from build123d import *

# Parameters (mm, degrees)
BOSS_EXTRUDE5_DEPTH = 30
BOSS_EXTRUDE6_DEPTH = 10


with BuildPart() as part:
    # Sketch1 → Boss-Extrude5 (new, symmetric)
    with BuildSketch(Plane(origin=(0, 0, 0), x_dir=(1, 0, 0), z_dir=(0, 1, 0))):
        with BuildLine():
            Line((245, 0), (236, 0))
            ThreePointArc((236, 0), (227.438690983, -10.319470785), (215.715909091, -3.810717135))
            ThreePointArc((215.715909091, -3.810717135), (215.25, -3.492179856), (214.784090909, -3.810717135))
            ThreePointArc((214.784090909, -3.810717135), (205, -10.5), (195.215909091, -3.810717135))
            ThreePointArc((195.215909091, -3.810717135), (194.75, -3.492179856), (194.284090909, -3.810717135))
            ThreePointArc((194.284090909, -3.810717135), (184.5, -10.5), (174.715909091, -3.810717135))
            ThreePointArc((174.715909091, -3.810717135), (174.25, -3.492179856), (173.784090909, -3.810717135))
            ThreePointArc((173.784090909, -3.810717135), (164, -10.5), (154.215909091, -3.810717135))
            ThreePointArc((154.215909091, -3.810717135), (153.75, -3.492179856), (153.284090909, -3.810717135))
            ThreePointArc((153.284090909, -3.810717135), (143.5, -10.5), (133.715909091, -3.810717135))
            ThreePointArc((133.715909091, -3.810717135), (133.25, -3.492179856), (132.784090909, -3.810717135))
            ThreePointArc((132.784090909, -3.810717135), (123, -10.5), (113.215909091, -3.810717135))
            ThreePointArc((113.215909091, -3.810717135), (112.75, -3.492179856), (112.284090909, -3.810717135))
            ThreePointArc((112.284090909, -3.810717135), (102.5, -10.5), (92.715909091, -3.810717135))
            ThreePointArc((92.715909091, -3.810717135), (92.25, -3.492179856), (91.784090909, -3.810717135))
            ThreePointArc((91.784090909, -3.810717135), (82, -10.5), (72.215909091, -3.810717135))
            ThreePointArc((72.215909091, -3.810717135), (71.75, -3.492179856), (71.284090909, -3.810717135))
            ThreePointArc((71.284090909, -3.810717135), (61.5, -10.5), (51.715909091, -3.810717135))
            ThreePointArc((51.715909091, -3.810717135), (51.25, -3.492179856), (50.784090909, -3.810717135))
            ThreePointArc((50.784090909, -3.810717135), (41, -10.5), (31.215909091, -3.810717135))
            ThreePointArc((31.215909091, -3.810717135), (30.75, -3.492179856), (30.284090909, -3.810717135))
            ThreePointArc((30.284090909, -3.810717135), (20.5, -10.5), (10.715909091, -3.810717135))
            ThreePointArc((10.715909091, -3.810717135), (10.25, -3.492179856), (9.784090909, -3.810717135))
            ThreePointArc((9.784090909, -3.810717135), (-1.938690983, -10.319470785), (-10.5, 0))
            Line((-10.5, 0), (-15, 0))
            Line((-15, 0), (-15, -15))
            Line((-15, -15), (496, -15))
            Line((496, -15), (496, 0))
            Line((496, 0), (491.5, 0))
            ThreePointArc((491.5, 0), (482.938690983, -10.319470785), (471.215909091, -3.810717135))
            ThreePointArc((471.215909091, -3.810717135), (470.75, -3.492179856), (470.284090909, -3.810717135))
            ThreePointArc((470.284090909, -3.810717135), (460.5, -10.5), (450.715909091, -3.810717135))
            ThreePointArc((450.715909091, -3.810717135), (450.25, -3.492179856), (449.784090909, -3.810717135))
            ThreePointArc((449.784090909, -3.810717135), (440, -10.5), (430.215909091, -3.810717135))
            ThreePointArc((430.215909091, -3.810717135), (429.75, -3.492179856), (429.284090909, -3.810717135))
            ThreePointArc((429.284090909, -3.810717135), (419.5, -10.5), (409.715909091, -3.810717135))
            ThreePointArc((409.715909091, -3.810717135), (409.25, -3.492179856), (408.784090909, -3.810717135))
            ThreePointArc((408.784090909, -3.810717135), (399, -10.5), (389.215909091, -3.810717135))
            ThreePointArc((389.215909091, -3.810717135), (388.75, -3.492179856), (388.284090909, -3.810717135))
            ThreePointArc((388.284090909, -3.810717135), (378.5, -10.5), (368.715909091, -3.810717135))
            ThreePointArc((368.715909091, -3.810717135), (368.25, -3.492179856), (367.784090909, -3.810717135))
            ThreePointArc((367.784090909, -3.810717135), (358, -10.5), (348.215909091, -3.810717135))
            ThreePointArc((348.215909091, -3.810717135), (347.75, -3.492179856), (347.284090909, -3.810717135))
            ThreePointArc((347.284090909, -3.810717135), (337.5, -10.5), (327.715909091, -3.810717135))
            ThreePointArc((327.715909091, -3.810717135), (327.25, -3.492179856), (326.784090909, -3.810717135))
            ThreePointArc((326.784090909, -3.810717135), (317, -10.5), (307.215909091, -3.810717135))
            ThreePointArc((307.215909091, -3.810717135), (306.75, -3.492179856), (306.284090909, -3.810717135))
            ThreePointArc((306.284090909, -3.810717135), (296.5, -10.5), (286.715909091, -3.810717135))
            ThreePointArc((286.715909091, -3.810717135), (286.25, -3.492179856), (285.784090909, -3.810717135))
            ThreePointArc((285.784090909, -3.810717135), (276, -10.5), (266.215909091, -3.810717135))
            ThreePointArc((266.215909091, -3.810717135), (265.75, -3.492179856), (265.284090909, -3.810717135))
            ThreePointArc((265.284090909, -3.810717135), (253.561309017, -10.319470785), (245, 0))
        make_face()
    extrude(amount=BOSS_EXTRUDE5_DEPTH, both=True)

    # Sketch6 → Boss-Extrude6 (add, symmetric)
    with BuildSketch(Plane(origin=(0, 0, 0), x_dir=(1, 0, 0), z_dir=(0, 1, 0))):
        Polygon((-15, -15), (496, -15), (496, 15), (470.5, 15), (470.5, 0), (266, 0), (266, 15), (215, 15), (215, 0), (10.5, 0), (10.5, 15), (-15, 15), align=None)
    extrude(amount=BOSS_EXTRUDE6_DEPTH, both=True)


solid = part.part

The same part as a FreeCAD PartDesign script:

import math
import FreeCAD as App
import Part
import Sketcher

V = App.Vector
Q = App.Units.Quantity

doc = App.newDocument("Part")
body = doc.addObject("PartDesign::Body", "Body")

sketch1 = body.newObject("Sketcher::SketchObject", "Sketch")
sketch1.AttachmentSupport = (doc.getObject("XZ_Plane"), [""])
sketch1.MapMode = "FlatFace"
sketch1.addGeometry([
    Part.LineSegment(V(245, 0, 0), V(236, 0, 0)),
    Part.ArcOfCircle(Part.Circle(V(225.5, 0, 0), V(0, 0, 1), 10.5), math.radians(0), math.radians(158.720034)),
    Part.ArcOfCircle(Part.Circle(V(215.25, 3.99218, 0), V(0, 0, 1), 0.5), math.radians(-158.720034), math.radians(-21.279966)),
    Part.ArcOfCircle(Part.Circle(V(205, 0, 0), V(0, 0, 1), 10.5), math.radians(21.279966), math.radians(158.720034)),
    Part.ArcOfCircle(Part.Circle(V(194.75, 3.99218, 0), V(0, 0, 1), 0.5), math.radians(-158.720034), math.radians(-21.279966)),
    Part.ArcOfCircle(Part.Circle(V(184.5, 0, 0), V(0, 0, 1), 10.5), math.radians(21.279966), math.radians(158.720034)),
    Part.ArcOfCircle(Part.Circle(V(174.25, 3.99218, 0), V(0, 0, 1), 0.5), math.radians(-158.720034), math.radians(-21.279966)),
    Part.ArcOfCircle(Part.Circle(V(164, 0, 0), V(0, 0, 1), 10.5), math.radians(21.279966), math.radians(158.720034)),
    Part.ArcOfCircle(Part.Circle(V(153.75, 3.99218, 0), V(0, 0, 1), 0.5), math.radians(-158.720034), math.radians(-21.279966)),
    Part.ArcOfCircle(Part.Circle(V(143.5, 0, 0), V(0, 0, 1), 10.5), math.radians(21.279966), math.radians(158.720034)),
    Part.ArcOfCircle(Part.Circle(V(133.25, 3.99218, 0), V(0, 0, 1), 0.5), math.radians(-158.720034), math.radians(-21.279966)),
    Part.ArcOfCircle(Part.Circle(V(123, 0, 0), V(0, 0, 1), 10.5), math.radians(21.279966), math.radians(158.720034)),
    Part.ArcOfCircle(Part.Circle(V(112.75, 3.99218, 0), V(0, 0, 1), 0.5), math.radians(-158.720034), math.radians(-21.279966)),
    Part.ArcOfCircle(Part.Circle(V(102.5, 0, 0), V(0, 0, 1), 10.5), math.radians(21.279966), math.radians(158.720034)),
    Part.ArcOfCircle(Part.Circle(V(92.25, 3.99218, 0), V(0, 0, 1), 0.5), math.radians(-158.720034), math.radians(-21.279966)),
    Part.ArcOfCircle(Part.Circle(V(82, 0, 0), V(0, 0, 1), 10.5), math.radians(21.279966), math.radians(158.720034)),
    Part.ArcOfCircle(Part.Circle(V(71.75, 3.99218, 0), V(0, 0, 1), 0.5), math.radians(-158.720034), math.radians(-21.279966)),
    Part.ArcOfCircle(Part.Circle(V(61.5, 0, 0), V(0, 0, 1), 10.5), math.radians(21.279966), math.radians(158.720034)),
    Part.ArcOfCircle(Part.Circle(V(51.25, 3.99218, 0), V(0, 0, 1), 0.5), math.radians(-158.720034), math.radians(-21.279966)),
    Part.ArcOfCircle(Part.Circle(V(41, 0, 0), V(0, 0, 1), 10.5), math.radians(21.279966), math.radians(158.720034)),
    Part.ArcOfCircle(Part.Circle(V(30.75, 3.99218, 0), V(0, 0, 1), 0.5), math.radians(-158.720034), math.radians(-21.279966)),
    Part.ArcOfCircle(Part.Circle(V(20.5, 0, 0), V(0, 0, 1), 10.5), math.radians(21.279966), math.radians(158.720034)),
    Part.ArcOfCircle(Part.Circle(V(10.25, 3.99218, 0), V(0, 0, 1), 0.5), math.radians(-158.720034), math.radians(-21.279966)),
    Part.ArcOfCircle(Part.Circle(V(0, 0, 0), V(0, 0, 1), 10.5), math.radians(21.279966), math.radians(180)),
    Part.LineSegment(V(-10.5, 0, 0), V(-15, 0, 0)),
    Part.LineSegment(V(-15, 0, 0), V(-15, 15, 0)),
    Part.LineSegment(V(-15, 15, 0), V(496, 15, 0)),
    Part.LineSegment(V(496, 15, 0), V(496, 0, 0)),
    Part.LineSegment(V(496, 0, 0), V(491.5, 0, 0)),
    Part.ArcOfCircle(Part.Circle(V(481, 0, 0), V(0, 0, 1), 10.5), math.radians(0), math.radians(158.720034)),
    Part.ArcOfCircle(Part.Circle(V(470.75, 3.99218, 0), V(0, 0, 1), 0.5), math.radians(-158.720034), math.radians(-21.279966)),
    Part.ArcOfCircle(Part.Circle(V(460.5, 0, 0), V(0, 0, 1), 10.5), math.radians(21.279966), math.radians(158.720034)),
    Part.ArcOfCircle(Part.Circle(V(450.25, 3.99218, 0), V(0, 0, 1), 0.5), math.radians(-158.720034), math.radians(-21.279966)),
    Part.ArcOfCircle(Part.Circle(V(440, 0, 0), V(0, 0, 1), 10.5), math.radians(21.279966), math.radians(158.720034)),
    Part.ArcOfCircle(Part.Circle(V(429.75, 3.99218, 0), V(0, 0, 1), 0.5), math.radians(-158.720034), math.radians(-21.279966)),
    Part.ArcOfCircle(Part.Circle(V(419.5, 0, 0), V(0, 0, 1), 10.5), math.radians(21.279966), math.radians(158.720034)),
    Part.ArcOfCircle(Part.Circle(V(409.25, 3.99218, 0), V(0, 0, 1), 0.5), math.radians(-158.720034), math.radians(-21.279966)),
    Part.ArcOfCircle(Part.Circle(V(399, 0, 0), V(0, 0, 1), 10.5), math.radians(21.279966), math.radians(158.720034)),
    Part.ArcOfCircle(Part.Circle(V(388.75, 3.99218, 0), V(0, 0, 1), 0.5), math.radians(-158.720034), math.radians(-21.279966)),
    Part.ArcOfCircle(Part.Circle(V(378.5, 0, 0), V(0, 0, 1), 10.5), math.radians(21.279966), math.radians(158.720034)),
    Part.ArcOfCircle(Part.Circle(V(368.25, 3.99218, 0), V(0, 0, 1), 0.5), math.radians(-158.720034), math.radians(-21.279966)),
    Part.ArcOfCircle(Part.Circle(V(358, 0, 0), V(0, 0, 1), 10.5), math.radians(21.279966), math.radians(158.720034)),
    Part.ArcOfCircle(Part.Circle(V(347.75, 3.99218, 0), V(0, 0, 1), 0.5), math.radians(-158.720034), math.radians(-21.279966)),
    Part.ArcOfCircle(Part.Circle(V(337.5, 0, 0), V(0, 0, 1), 10.5), math.radians(21.279966), math.radians(158.720034)),
    Part.ArcOfCircle(Part.Circle(V(327.25, 3.99218, 0), V(0, 0, 1), 0.5), math.radians(-158.720034), math.radians(-21.279966)),
    Part.ArcOfCircle(Part.Circle(V(317, 0, 0), V(0, 0, 1), 10.5), math.radians(21.279966), math.radians(158.720034)),
    Part.ArcOfCircle(Part.Circle(V(306.75, 3.99218, 0), V(0, 0, 1), 0.5), math.radians(-158.720034), math.radians(-21.279966)),
    Part.ArcOfCircle(Part.Circle(V(296.5, 0, 0), V(0, 0, 1), 10.5), math.radians(21.279966), math.radians(158.720034)),
    Part.ArcOfCircle(Part.Circle(V(286.25, 3.99218, 0), V(0, 0, 1), 0.5), math.radians(-158.720034), math.radians(-21.279966)),
    Part.ArcOfCircle(Part.Circle(V(276, 0, 0), V(0, 0, 1), 10.5), math.radians(21.279966), math.radians(158.720034)),
    Part.ArcOfCircle(Part.Circle(V(265.75, 3.99218, 0), V(0, 0, 1), 0.5), math.radians(-158.720034), math.radians(-21.279966)),
    Part.ArcOfCircle(Part.Circle(V(255.5, 0, 0), V(0, 0, 1), 10.5), math.radians(21.279966), math.radians(180)),
], False)
sketch1.addConstraint([
    Sketcher.Constraint("Coincident", 0, 2, 1, 1),
    Sketcher.Constraint("Tangent", 1, 2, 2, 2),
    Sketcher.Constraint("Tangent", 2, 1, 3, 1),
    Sketcher.Constraint("Tangent", 3, 2, 4, 2),
    Sketcher.Constraint("Tangent", 4, 1, 5, 1),
    Sketcher.Constraint("Tangent", 5, 2, 6, 2),
    Sketcher.Constraint("Tangent", 6, 1, 7, 1),
    Sketcher.Constraint("Tangent", 7, 2, 8, 2),
    Sketcher.Constraint("Tangent", 8, 1, 9, 1),
    Sketcher.Constraint("Tangent", 9, 2, 10, 2),
    Sketcher.Constraint("Tangent", 10, 1, 11, 1),
    Sketcher.Constraint("Tangent", 11, 2, 12, 2),
    Sketcher.Constraint("Tangent", 12, 1, 13, 1),
    Sketcher.Constraint("Tangent", 13, 2, 14, 2),
    Sketcher.Constraint("Tangent", 14, 1, 15, 1),
    Sketcher.Constraint("Tangent", 15, 2, 16, 2),
    Sketcher.Constraint("Tangent", 16, 1, 17, 1),
    Sketcher.Constraint("Tangent", 17, 2, 18, 2),
    Sketcher.Constraint("Tangent", 18, 1, 19, 1),
    Sketcher.Constraint("Tangent", 19, 2, 20, 2),
    Sketcher.Constraint("Tangent", 20, 1, 21, 1),
    Sketcher.Constraint("Tangent", 21, 2, 22, 2),
    Sketcher.Constraint("Tangent", 22, 1, 23, 1),
    Sketcher.Constraint("Coincident", 23, 2, 24, 1),
    Sketcher.Constraint("Coincident", 24, 2, 25, 1),
    Sketcher.Constraint("Coincident", 25, 2, 26, 1),
    Sketcher.Constraint("Coincident", 26, 2, 27, 1),
    Sketcher.Constraint("Coincident", 27, 2, 28, 1),
    Sketcher.Constraint("Coincident", 28, 2, 29, 1),
    Sketcher.Constraint("Tangent", 29, 2, 30, 2),
    Sketcher.Constraint("Tangent", 30, 1, 31, 1),
    Sketcher.Constraint("Tangent", 31, 2, 32, 2),
    Sketcher.Constraint("Tangent", 32, 1, 33, 1),
    Sketcher.Constraint("Tangent", 33, 2, 34, 2),
    Sketcher.Constraint("Tangent", 34, 1, 35, 1),
    Sketcher.Constraint("Tangent", 35, 2, 36, 2),
    Sketcher.Constraint("Tangent", 36, 1, 37, 1),
    Sketcher.Constraint("Tangent", 37, 2, 38, 2),
    Sketcher.Constraint("Tangent", 38, 1, 39, 1),
    Sketcher.Constraint("Tangent", 39, 2, 40, 2),
    Sketcher.Constraint("Tangent", 40, 1, 41, 1),
    Sketcher.Constraint("Tangent", 41, 2, 42, 2),
    Sketcher.Constraint("Tangent", 42, 1, 43, 1),
    Sketcher.Constraint("Tangent", 43, 2, 44, 2),
    Sketcher.Constraint("Tangent", 44, 1, 45, 1),
    Sketcher.Constraint("Tangent", 45, 2, 46, 2),
    Sketcher.Constraint("Tangent", 46, 1, 47, 1),
    Sketcher.Constraint("Tangent", 47, 2, 48, 2),
    Sketcher.Constraint("Tangent", 48, 1, 49, 1),
    Sketcher.Constraint("Tangent", 49, 2, 50, 2),
    Sketcher.Constraint("Tangent", 50, 1, 51, 1),
    Sketcher.Constraint("Coincident", 51, 2, 0, 1),
    Sketcher.Constraint("Horizontal", 0),
    Sketcher.Constraint("Horizontal", 24),
    Sketcher.Constraint("Vertical", 25),
    Sketcher.Constraint("Horizontal", 26),
    Sketcher.Constraint("Vertical", 27),
    Sketcher.Constraint("Horizontal", 28),
    Sketcher.Constraint("Coincident", 23, 3, -1, 1),
    Sketcher.Constraint("Equal", 1, 3),
    Sketcher.Constraint("Equal", 2, 4),
    Sketcher.Constraint("Equal", 3, 5),
    Sketcher.Constraint("Equal", 4, 6),
    Sketcher.Constraint("Equal", 5, 7),
    Sketcher.Constraint("Equal", 6, 8),
    Sketcher.Constraint("Equal", 7, 9),
    Sketcher.Constraint("Equal", 8, 10),
    Sketcher.Constraint("Equal", 9, 11),
    Sketcher.Constraint("Equal", 10, 12),
    Sketcher.Constraint("Equal", 11, 13),
    Sketcher.Constraint("Equal", 12, 14),
    Sketcher.Constraint("Equal", 13, 15),
    Sketcher.Constraint("Equal", 14, 16),
    Sketcher.Constraint("Equal", 15, 17),
    Sketcher.Constraint("Equal", 16, 18),
    Sketcher.Constraint("Equal", 17, 19),
    Sketcher.Constraint("Equal", 18, 20),
    Sketcher.Constraint("Equal", 19, 21),
    Sketcher.Constraint("Equal", 20, 22),
    Sketcher.Constraint("Equal", 21, 23),
    Sketcher.Constraint("Equal", 23, 29),
    Sketcher.Constraint("Equal", 22, 30),
    Sketcher.Constraint("Equal", 29, 31),
    Sketcher.Constraint("Equal", 30, 32),
    Sketcher.Constraint("Equal", 31, 33),
    Sketcher.Constraint("Equal", 32, 34),
    Sketcher.Constraint("Equal", 33, 35),
    Sketcher.Constraint("Equal", 34, 36),
    Sketcher.Constraint("Equal", 35, 37),
    Sketcher.Constraint("Equal", 36, 38),
    Sketcher.Constraint("Equal", 37, 39),
    Sketcher.Constraint("Equal", 38, 40),
    Sketcher.Constraint("Equal", 39, 41),
    Sketcher.Constraint("Equal", 40, 42),
    Sketcher.Constraint("Equal", 41, 43),
    Sketcher.Constraint("Equal", 42, 44),
    Sketcher.Constraint("Equal", 43, 45),
    Sketcher.Constraint("Equal", 44, 46),
    Sketcher.Constraint("Equal", 45, 47),
    Sketcher.Constraint("Equal", 46, 48),
    Sketcher.Constraint("Equal", 47, 49),
    Sketcher.Constraint("Equal", 48, 50),
    Sketcher.Constraint("Equal", 49, 51),
    Sketcher.Constraint("PointOnObject", 1, 3, -1),
    Sketcher.Constraint("PointOnObject", 3, 3, -1),
    Sketcher.Constraint("PointOnObject", 5, 3, -1),
    Sketcher.Constraint("PointOnObject", 7, 3, -1),
    Sketcher.Constraint("PointOnObject", 9, 3, -1),
    Sketcher.Constraint("PointOnObject", 11, 3, -1),
    Sketcher.Constraint("PointOnObject", 13, 3, -1),
    Sketcher.Constraint("PointOnObject", 15, 3, -1),
    Sketcher.Constraint("PointOnObject", 17, 3, -1),
    Sketcher.Constraint("PointOnObject", 19, 3, -1),
    Sketcher.Constraint("PointOnObject", 21, 3, -1),
    Sketcher.Constraint("PointOnObject", 29, 3, -1),
    Sketcher.Constraint("PointOnObject", 31, 3, -1),
    Sketcher.Constraint("PointOnObject", 33, 3, -1),
    Sketcher.Constraint("PointOnObject", 35, 3, -1),
    Sketcher.Constraint("PointOnObject", 37, 3, -1),
    Sketcher.Constraint("PointOnObject", 39, 3, -1),
    Sketcher.Constraint("PointOnObject", 41, 3, -1),
    Sketcher.Constraint("PointOnObject", 43, 3, -1),
    Sketcher.Constraint("PointOnObject", 45, 3, -1),
    Sketcher.Constraint("PointOnObject", 47, 3, -1),
    Sketcher.Constraint("PointOnObject", 49, 3, -1),
    Sketcher.Constraint("PointOnObject", 51, 3, -1),
    Sketcher.Constraint("PointOnObject", 0, 2, -1),
    Sketcher.Constraint("PointOnObject", 23, 2, -1),
    Sketcher.Constraint("PointOnObject", 27, 2, -1),
    Sketcher.Constraint("Horizontal", 2, 3, 4, 3),
    Sketcher.Constraint("Horizontal", 4, 3, 6, 3),
    Sketcher.Constraint("Horizontal", 6, 3, 8, 3),
    Sketcher.Constraint("Horizontal", 8, 3, 10, 3),
    Sketcher.Constraint("Horizontal", 10, 3, 12, 3),
    Sketcher.Constraint("Horizontal", 12, 3, 14, 3),
    Sketcher.Constraint("Horizontal", 14, 3, 16, 3),
    Sketcher.Constraint("Horizontal", 16, 3, 18, 3),
    Sketcher.Constraint("Horizontal", 18, 3, 20, 3),
    Sketcher.Constraint("Horizontal", 20, 3, 22, 3),
    Sketcher.Constraint("Horizontal", 22, 3, 30, 3),
    Sketcher.Constraint("Horizontal", 30, 3, 32, 3),
    Sketcher.Constraint("Horizontal", 32, 3, 34, 3),
    Sketcher.Constraint("Horizontal", 34, 3, 36, 3),
    Sketcher.Constraint("Horizontal", 36, 3, 38, 3),
    Sketcher.Constraint("Horizontal", 38, 3, 40, 3),
    Sketcher.Constraint("Horizontal", 40, 3, 42, 3),
    Sketcher.Constraint("Horizontal", 42, 3, 44, 3),
    Sketcher.Constraint("Horizontal", 44, 3, 46, 3),
    Sketcher.Constraint("Horizontal", 46, 3, 48, 3),
    Sketcher.Constraint("Horizontal", 48, 3, 50, 3),
    Sketcher.Constraint("Equal", 24, 28),
    Sketcher.Constraint("Radius", 1, Q("10.5 mm")),
    Sketcher.Constraint("Radius", 2, Q("0.5 mm")),
    Sketcher.Constraint("DistanceX", 0, 2, 0, 1, Q("9 mm")),
    Sketcher.Constraint("DistanceX", 26, 1, 26, 2, Q("511 mm")),
    Sketcher.Constraint("DistanceY", 25, 1, 25, 2, Q("15 mm")),
    Sketcher.Constraint("DistanceX", 24, 2, 24, 1, Q("4.5 mm")),
])
pad1 = body.newObject("PartDesign::Pad", "Pad")
pad1.Profile = sketch1
pad1.Length = 60
pad1.Midplane = True

sketch2 = body.newObject("Sketcher::SketchObject", "Sketch001")
sketch2.AttachmentSupport = (doc.getObject("XZ_Plane"), [""])
sketch2.MapMode = "FlatFace"
sketch2.addGeometry([
    Part.LineSegment(V(-15, 15, 0), V(496, 15, 0)),
    Part.LineSegment(V(496, 15, 0), V(496, -15, 0)),
    Part.LineSegment(V(496, -15, 0), V(470.5, -15, 0)),
    Part.LineSegment(V(470.5, -15, 0), V(470.5, 0, 0)),
    Part.LineSegment(V(470.5, 0, 0), V(266, 0, 0)),
    Part.LineSegment(V(266, 0, 0), V(266, -15, 0)),
    Part.LineSegment(V(266, -15, 0), V(215, -15, 0)),
    Part.LineSegment(V(215, -15, 0), V(215, 0, 0)),
    Part.LineSegment(V(215, 0, 0), V(10.5, 0, 0)),
    Part.LineSegment(V(10.5, 0, 0), V(10.5, -15, 0)),
    Part.LineSegment(V(10.5, -15, 0), V(-15, -15, 0)),
    Part.LineSegment(V(-15, -15, 0), V(-15, 15, 0)),
], False)
sketch2.addConstraint([
    Sketcher.Constraint("Coincident", 0, 2, 1, 1),
    Sketcher.Constraint("Coincident", 1, 2, 2, 1),
    Sketcher.Constraint("Coincident", 2, 2, 3, 1),
    Sketcher.Constraint("Coincident", 3, 2, 4, 1),
    Sketcher.Constraint("Coincident", 4, 2, 5, 1),
    Sketcher.Constraint("Coincident", 5, 2, 6, 1),
    Sketcher.Constraint("Coincident", 6, 2, 7, 1),
    Sketcher.Constraint("Coincident", 7, 2, 8, 1),
    Sketcher.Constraint("Coincident", 8, 2, 9, 1),
    Sketcher.Constraint("Coincident", 9, 2, 10, 1),
    Sketcher.Constraint("Coincident", 10, 2, 11, 1),
    Sketcher.Constraint("Coincident", 11, 2, 0, 1),
    Sketcher.Constraint("Horizontal", 0),
    Sketcher.Constraint("Vertical", 1),
    Sketcher.Constraint("Horizontal", 2),
    Sketcher.Constraint("Vertical", 3),
    Sketcher.Constraint("Horizontal", 4),
    Sketcher.Constraint("Vertical", 5),
    Sketcher.Constraint("Horizontal", 6),
    Sketcher.Constraint("Vertical", 7),
    Sketcher.Constraint("Horizontal", 8),
    Sketcher.Constraint("Vertical", 9),
    Sketcher.Constraint("Horizontal", 10),
    Sketcher.Constraint("Vertical", 11),
    Sketcher.Constraint("PointOnObject", 3, 2, -1),
    Sketcher.Constraint("PointOnObject", 7, 2, -1),
    Sketcher.Constraint("Horizontal", 2, 2, 5, 2),
    Sketcher.Constraint("Horizontal", 6, 2, 9, 2),
    Sketcher.Constraint("Equal", 4, 8),
    Sketcher.Constraint("Equal", 2, 10),
    Sketcher.Constraint("DistanceX", 0, 1, 0, 2, Q("511 mm")),
    Sketcher.Constraint("DistanceX", 6, 2, 6, 1, Q("51 mm")),
    Sketcher.Constraint("DistanceY", 1, 2, 1, 1, Q("30 mm")),
    Sketcher.Constraint("DistanceY", 3, 1, 3, 2, Q("15 mm")),
    Sketcher.Constraint("DistanceX", 2, 2, 2, 1, Q("25.5 mm")),
    Sketcher.Constraint("DistanceX", -1, 1, 0, 2, Q("496 mm")),
])
pad2 = body.newObject("PartDesign::Pad", "Pad001")
pad2.Profile = sketch2
pad2.Length = 20
pad2.Midplane = True

doc.recompute()
